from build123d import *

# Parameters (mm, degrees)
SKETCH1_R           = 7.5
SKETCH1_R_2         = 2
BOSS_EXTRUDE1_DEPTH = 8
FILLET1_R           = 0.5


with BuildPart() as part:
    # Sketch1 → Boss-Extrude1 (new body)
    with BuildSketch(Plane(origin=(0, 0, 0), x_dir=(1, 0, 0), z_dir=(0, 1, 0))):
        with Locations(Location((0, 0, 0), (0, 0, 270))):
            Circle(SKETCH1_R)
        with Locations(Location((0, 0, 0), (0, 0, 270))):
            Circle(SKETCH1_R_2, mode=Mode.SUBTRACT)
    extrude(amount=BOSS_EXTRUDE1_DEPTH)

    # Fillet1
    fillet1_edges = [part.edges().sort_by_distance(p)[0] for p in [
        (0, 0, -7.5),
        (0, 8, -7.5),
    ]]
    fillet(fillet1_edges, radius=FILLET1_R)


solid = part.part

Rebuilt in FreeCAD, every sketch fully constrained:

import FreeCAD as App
import Part
import Sketcher
from FreeCAD import Vector


def edges_at(feature, points):
    """Names of the edges that pass closest to the given points."""
    edges = feature.Shape.Edges
    near = lambda p: min(range(len(edges)), key=lambda i: edges[i].distToShape(Part.Vertex(*p))[0])
    return sorted({f"Edge{near(p) + 1}" for p in points})

doc = App.newDocument("Part")
body = doc.addObject("PartDesign::Body", "Body")

# Sketch on XZ plane
sketch1 = doc.addObject("Sketcher::SketchObject", "Sketch")
body.addObject(sketch1)
sketch1.AttachmentSupport = (doc.XZ_Plane, [""])
sketch1.MapMode = "FlatFace"
sketch1.addGeometry([
    Part.Circle(Vector(0, 0, 0), Vector(0, 0, 1), 7.5),
    Part.Circle(Vector(0, 0, 0), Vector(0, 0, 1), 2),
], False)
sketch1.addConstraint([
    Sketcher.Constraint("Coincident", 0, 3, -1, 1),
    Sketcher.Constraint("Coincident", 1, 3, -1, 1),
    Sketcher.Constraint("Diameter", 0, 15.0),
    Sketcher.Constraint("Diameter", 1, 4.0),
])
pad1 = doc.addObject("PartDesign::Pad", "Pad")
body.addObject(pad1)
pad1.Profile = sketch1
pad1.Length = 8
pad1.Reversed = True
doc.recompute()

fillet = doc.addObject("PartDesign::Fillet", "Fillet")
body.addObject(fillet)
fillet.Base = (pad1, edges_at(pad1, [(0, 0, -7.5), (0, 8, -7.5)]))
fillet.Radius = 0.5

doc.recompute()
